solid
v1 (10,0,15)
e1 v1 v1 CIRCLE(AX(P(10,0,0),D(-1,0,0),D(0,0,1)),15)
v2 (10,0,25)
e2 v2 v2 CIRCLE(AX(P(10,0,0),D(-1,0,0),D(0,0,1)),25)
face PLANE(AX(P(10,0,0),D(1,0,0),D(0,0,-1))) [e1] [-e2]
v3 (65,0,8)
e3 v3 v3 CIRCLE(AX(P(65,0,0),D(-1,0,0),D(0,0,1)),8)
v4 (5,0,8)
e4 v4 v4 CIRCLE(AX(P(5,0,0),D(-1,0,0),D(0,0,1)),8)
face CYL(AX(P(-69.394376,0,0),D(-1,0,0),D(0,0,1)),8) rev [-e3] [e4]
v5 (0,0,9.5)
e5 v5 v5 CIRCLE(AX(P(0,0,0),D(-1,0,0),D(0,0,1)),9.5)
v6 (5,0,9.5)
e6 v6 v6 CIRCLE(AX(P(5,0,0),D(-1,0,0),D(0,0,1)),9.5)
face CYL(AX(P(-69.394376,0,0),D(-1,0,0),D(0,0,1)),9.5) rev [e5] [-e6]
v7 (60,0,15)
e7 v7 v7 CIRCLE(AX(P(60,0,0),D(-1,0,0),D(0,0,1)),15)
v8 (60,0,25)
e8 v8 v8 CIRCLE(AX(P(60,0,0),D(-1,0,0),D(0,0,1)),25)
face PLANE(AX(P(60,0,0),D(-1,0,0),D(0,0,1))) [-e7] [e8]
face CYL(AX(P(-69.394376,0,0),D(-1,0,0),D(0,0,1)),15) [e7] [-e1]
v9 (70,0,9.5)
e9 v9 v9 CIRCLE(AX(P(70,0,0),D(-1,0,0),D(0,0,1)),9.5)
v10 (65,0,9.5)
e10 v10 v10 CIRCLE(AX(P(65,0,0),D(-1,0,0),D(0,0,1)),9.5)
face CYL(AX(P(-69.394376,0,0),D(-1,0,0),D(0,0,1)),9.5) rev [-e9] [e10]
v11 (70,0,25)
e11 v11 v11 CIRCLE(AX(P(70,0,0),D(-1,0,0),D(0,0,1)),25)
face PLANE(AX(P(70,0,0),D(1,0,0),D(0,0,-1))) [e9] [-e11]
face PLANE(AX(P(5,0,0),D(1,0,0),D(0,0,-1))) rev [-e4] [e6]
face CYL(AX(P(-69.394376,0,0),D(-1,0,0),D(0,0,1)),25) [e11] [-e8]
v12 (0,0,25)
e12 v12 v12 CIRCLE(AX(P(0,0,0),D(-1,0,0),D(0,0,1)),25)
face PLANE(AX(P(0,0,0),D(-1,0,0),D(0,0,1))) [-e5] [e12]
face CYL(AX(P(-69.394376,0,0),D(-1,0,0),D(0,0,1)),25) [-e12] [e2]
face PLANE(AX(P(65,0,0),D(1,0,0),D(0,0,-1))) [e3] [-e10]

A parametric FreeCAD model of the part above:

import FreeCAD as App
import Part
import Sketcher

V = App.Vector
Q = App.Units.Quantity


def add_polygon(sketch, points):
    """Adds a closed chain of lines whose ends are joined by coincident constraints."""
    first, n = sketch.GeometryCount, len(points)
    for a, b in zip(points, points[1:] + points[:1]):
        sketch.addGeometry(Part.LineSegment(App.Vector(*a, 0), App.Vector(*b, 0)), False)
    for i in range(n):
        sketch.addConstraint(Sketcher.Constraint("Coincident", first + i, 2, first + (i + 1) % n, 1))

doc = App.newDocument("Part")
body = doc.addObject("PartDesign::Body", "Body")

# Sketch on XY plane
sketch1 = body.newObject("Sketcher::SketchObject", "Sketch")
sketch1.AttachmentSupport = (doc.getObject("XY_Plane"), [""])
sketch1.MapMode = "FlatFace"
add_polygon(sketch1, [(5, 9.5), (5, 8), (65, 8), (65, 9.5), (70, 9.5), (70, 25), (60, 25), (60, 15), (10, 15), (10, 25), (0, 25), (0, 9.5)])  # lines 0-11
sketch1.addConstraint(Sketcher.Constraint("Vertical", 0))
sketch1.addConstraint(Sketcher.Constraint("Horizontal", 1))
sketch1.addConstraint(Sketcher.Constraint("Vertical", 2))
sketch1.addConstraint(Sketcher.Constraint("Horizontal", 3))
sketch1.addConstraint(Sketcher.Constraint("Vertical", 4))
sketch1.addConstraint(Sketcher.Constraint("Horizontal", 5))
sketch1.addConstraint(Sketcher.Constraint("Vertical", 6))
sketch1.addConstraint(Sketcher.Constraint("Horizontal", 7))
sketch1.addConstraint(Sketcher.Constraint("Vertical", 8))
sketch1.addConstraint(Sketcher.Constraint("Horizontal", 9))
sketch1.addConstraint(Sketcher.Constraint("Vertical", 10))
sketch1.addConstraint(Sketcher.Constraint("Horizontal", 11))
sketch1.addConstraint(Sketcher.Constraint("PointOnObject", 9, 2, -2))
sketch1.addConstraint(Sketcher.Constraint("Horizontal", 5, 2, 8, 2))
sketch1.addConstraint(Sketcher.Constraint("Horizontal", 3, 2, 10, 2))
sketch1.addConstraint(Sketcher.Constraint("Equal", 5, 9))
sketch1.addConstraint(Sketcher.Constraint("Equal", 3, 11))
sketch1.addConstraint(Sketcher.Constraint("Equal", 9, 6))
sketch1.addConstraint(Sketcher.Constraint("DistanceX", 1, 1, 1, 2, Q("60 mm")))
sketch1.addConstraint(Sketcher.Constraint("DistanceX", 3, 1, 3, 2, Q("5 mm")))
sketch1.addConstraint(Sketcher.Constraint("DistanceX", 5, 2, 5, 1, Q("10 mm")))
sketch1.addConstraint(Sketcher.Constraint("DistanceY", 0, 2, 0, 1, Q("1.5 mm")))
sketch1.addConstraint(Sketcher.Constraint("DistanceY", 4, 1, 4, 2, Q("15.5 mm")))
sketch1.addConstraint(Sketcher.Constraint("DistanceY", -1, 1, 0, 2, Q("8 mm")))
revolution = body.newObject("PartDesign::Revolution", "Revolution")
revolution.Profile = sketch1
revolution.ReferenceAxis = (sketch1, ["H_Axis"])
revolution.Angle = 360

doc.recompute()
